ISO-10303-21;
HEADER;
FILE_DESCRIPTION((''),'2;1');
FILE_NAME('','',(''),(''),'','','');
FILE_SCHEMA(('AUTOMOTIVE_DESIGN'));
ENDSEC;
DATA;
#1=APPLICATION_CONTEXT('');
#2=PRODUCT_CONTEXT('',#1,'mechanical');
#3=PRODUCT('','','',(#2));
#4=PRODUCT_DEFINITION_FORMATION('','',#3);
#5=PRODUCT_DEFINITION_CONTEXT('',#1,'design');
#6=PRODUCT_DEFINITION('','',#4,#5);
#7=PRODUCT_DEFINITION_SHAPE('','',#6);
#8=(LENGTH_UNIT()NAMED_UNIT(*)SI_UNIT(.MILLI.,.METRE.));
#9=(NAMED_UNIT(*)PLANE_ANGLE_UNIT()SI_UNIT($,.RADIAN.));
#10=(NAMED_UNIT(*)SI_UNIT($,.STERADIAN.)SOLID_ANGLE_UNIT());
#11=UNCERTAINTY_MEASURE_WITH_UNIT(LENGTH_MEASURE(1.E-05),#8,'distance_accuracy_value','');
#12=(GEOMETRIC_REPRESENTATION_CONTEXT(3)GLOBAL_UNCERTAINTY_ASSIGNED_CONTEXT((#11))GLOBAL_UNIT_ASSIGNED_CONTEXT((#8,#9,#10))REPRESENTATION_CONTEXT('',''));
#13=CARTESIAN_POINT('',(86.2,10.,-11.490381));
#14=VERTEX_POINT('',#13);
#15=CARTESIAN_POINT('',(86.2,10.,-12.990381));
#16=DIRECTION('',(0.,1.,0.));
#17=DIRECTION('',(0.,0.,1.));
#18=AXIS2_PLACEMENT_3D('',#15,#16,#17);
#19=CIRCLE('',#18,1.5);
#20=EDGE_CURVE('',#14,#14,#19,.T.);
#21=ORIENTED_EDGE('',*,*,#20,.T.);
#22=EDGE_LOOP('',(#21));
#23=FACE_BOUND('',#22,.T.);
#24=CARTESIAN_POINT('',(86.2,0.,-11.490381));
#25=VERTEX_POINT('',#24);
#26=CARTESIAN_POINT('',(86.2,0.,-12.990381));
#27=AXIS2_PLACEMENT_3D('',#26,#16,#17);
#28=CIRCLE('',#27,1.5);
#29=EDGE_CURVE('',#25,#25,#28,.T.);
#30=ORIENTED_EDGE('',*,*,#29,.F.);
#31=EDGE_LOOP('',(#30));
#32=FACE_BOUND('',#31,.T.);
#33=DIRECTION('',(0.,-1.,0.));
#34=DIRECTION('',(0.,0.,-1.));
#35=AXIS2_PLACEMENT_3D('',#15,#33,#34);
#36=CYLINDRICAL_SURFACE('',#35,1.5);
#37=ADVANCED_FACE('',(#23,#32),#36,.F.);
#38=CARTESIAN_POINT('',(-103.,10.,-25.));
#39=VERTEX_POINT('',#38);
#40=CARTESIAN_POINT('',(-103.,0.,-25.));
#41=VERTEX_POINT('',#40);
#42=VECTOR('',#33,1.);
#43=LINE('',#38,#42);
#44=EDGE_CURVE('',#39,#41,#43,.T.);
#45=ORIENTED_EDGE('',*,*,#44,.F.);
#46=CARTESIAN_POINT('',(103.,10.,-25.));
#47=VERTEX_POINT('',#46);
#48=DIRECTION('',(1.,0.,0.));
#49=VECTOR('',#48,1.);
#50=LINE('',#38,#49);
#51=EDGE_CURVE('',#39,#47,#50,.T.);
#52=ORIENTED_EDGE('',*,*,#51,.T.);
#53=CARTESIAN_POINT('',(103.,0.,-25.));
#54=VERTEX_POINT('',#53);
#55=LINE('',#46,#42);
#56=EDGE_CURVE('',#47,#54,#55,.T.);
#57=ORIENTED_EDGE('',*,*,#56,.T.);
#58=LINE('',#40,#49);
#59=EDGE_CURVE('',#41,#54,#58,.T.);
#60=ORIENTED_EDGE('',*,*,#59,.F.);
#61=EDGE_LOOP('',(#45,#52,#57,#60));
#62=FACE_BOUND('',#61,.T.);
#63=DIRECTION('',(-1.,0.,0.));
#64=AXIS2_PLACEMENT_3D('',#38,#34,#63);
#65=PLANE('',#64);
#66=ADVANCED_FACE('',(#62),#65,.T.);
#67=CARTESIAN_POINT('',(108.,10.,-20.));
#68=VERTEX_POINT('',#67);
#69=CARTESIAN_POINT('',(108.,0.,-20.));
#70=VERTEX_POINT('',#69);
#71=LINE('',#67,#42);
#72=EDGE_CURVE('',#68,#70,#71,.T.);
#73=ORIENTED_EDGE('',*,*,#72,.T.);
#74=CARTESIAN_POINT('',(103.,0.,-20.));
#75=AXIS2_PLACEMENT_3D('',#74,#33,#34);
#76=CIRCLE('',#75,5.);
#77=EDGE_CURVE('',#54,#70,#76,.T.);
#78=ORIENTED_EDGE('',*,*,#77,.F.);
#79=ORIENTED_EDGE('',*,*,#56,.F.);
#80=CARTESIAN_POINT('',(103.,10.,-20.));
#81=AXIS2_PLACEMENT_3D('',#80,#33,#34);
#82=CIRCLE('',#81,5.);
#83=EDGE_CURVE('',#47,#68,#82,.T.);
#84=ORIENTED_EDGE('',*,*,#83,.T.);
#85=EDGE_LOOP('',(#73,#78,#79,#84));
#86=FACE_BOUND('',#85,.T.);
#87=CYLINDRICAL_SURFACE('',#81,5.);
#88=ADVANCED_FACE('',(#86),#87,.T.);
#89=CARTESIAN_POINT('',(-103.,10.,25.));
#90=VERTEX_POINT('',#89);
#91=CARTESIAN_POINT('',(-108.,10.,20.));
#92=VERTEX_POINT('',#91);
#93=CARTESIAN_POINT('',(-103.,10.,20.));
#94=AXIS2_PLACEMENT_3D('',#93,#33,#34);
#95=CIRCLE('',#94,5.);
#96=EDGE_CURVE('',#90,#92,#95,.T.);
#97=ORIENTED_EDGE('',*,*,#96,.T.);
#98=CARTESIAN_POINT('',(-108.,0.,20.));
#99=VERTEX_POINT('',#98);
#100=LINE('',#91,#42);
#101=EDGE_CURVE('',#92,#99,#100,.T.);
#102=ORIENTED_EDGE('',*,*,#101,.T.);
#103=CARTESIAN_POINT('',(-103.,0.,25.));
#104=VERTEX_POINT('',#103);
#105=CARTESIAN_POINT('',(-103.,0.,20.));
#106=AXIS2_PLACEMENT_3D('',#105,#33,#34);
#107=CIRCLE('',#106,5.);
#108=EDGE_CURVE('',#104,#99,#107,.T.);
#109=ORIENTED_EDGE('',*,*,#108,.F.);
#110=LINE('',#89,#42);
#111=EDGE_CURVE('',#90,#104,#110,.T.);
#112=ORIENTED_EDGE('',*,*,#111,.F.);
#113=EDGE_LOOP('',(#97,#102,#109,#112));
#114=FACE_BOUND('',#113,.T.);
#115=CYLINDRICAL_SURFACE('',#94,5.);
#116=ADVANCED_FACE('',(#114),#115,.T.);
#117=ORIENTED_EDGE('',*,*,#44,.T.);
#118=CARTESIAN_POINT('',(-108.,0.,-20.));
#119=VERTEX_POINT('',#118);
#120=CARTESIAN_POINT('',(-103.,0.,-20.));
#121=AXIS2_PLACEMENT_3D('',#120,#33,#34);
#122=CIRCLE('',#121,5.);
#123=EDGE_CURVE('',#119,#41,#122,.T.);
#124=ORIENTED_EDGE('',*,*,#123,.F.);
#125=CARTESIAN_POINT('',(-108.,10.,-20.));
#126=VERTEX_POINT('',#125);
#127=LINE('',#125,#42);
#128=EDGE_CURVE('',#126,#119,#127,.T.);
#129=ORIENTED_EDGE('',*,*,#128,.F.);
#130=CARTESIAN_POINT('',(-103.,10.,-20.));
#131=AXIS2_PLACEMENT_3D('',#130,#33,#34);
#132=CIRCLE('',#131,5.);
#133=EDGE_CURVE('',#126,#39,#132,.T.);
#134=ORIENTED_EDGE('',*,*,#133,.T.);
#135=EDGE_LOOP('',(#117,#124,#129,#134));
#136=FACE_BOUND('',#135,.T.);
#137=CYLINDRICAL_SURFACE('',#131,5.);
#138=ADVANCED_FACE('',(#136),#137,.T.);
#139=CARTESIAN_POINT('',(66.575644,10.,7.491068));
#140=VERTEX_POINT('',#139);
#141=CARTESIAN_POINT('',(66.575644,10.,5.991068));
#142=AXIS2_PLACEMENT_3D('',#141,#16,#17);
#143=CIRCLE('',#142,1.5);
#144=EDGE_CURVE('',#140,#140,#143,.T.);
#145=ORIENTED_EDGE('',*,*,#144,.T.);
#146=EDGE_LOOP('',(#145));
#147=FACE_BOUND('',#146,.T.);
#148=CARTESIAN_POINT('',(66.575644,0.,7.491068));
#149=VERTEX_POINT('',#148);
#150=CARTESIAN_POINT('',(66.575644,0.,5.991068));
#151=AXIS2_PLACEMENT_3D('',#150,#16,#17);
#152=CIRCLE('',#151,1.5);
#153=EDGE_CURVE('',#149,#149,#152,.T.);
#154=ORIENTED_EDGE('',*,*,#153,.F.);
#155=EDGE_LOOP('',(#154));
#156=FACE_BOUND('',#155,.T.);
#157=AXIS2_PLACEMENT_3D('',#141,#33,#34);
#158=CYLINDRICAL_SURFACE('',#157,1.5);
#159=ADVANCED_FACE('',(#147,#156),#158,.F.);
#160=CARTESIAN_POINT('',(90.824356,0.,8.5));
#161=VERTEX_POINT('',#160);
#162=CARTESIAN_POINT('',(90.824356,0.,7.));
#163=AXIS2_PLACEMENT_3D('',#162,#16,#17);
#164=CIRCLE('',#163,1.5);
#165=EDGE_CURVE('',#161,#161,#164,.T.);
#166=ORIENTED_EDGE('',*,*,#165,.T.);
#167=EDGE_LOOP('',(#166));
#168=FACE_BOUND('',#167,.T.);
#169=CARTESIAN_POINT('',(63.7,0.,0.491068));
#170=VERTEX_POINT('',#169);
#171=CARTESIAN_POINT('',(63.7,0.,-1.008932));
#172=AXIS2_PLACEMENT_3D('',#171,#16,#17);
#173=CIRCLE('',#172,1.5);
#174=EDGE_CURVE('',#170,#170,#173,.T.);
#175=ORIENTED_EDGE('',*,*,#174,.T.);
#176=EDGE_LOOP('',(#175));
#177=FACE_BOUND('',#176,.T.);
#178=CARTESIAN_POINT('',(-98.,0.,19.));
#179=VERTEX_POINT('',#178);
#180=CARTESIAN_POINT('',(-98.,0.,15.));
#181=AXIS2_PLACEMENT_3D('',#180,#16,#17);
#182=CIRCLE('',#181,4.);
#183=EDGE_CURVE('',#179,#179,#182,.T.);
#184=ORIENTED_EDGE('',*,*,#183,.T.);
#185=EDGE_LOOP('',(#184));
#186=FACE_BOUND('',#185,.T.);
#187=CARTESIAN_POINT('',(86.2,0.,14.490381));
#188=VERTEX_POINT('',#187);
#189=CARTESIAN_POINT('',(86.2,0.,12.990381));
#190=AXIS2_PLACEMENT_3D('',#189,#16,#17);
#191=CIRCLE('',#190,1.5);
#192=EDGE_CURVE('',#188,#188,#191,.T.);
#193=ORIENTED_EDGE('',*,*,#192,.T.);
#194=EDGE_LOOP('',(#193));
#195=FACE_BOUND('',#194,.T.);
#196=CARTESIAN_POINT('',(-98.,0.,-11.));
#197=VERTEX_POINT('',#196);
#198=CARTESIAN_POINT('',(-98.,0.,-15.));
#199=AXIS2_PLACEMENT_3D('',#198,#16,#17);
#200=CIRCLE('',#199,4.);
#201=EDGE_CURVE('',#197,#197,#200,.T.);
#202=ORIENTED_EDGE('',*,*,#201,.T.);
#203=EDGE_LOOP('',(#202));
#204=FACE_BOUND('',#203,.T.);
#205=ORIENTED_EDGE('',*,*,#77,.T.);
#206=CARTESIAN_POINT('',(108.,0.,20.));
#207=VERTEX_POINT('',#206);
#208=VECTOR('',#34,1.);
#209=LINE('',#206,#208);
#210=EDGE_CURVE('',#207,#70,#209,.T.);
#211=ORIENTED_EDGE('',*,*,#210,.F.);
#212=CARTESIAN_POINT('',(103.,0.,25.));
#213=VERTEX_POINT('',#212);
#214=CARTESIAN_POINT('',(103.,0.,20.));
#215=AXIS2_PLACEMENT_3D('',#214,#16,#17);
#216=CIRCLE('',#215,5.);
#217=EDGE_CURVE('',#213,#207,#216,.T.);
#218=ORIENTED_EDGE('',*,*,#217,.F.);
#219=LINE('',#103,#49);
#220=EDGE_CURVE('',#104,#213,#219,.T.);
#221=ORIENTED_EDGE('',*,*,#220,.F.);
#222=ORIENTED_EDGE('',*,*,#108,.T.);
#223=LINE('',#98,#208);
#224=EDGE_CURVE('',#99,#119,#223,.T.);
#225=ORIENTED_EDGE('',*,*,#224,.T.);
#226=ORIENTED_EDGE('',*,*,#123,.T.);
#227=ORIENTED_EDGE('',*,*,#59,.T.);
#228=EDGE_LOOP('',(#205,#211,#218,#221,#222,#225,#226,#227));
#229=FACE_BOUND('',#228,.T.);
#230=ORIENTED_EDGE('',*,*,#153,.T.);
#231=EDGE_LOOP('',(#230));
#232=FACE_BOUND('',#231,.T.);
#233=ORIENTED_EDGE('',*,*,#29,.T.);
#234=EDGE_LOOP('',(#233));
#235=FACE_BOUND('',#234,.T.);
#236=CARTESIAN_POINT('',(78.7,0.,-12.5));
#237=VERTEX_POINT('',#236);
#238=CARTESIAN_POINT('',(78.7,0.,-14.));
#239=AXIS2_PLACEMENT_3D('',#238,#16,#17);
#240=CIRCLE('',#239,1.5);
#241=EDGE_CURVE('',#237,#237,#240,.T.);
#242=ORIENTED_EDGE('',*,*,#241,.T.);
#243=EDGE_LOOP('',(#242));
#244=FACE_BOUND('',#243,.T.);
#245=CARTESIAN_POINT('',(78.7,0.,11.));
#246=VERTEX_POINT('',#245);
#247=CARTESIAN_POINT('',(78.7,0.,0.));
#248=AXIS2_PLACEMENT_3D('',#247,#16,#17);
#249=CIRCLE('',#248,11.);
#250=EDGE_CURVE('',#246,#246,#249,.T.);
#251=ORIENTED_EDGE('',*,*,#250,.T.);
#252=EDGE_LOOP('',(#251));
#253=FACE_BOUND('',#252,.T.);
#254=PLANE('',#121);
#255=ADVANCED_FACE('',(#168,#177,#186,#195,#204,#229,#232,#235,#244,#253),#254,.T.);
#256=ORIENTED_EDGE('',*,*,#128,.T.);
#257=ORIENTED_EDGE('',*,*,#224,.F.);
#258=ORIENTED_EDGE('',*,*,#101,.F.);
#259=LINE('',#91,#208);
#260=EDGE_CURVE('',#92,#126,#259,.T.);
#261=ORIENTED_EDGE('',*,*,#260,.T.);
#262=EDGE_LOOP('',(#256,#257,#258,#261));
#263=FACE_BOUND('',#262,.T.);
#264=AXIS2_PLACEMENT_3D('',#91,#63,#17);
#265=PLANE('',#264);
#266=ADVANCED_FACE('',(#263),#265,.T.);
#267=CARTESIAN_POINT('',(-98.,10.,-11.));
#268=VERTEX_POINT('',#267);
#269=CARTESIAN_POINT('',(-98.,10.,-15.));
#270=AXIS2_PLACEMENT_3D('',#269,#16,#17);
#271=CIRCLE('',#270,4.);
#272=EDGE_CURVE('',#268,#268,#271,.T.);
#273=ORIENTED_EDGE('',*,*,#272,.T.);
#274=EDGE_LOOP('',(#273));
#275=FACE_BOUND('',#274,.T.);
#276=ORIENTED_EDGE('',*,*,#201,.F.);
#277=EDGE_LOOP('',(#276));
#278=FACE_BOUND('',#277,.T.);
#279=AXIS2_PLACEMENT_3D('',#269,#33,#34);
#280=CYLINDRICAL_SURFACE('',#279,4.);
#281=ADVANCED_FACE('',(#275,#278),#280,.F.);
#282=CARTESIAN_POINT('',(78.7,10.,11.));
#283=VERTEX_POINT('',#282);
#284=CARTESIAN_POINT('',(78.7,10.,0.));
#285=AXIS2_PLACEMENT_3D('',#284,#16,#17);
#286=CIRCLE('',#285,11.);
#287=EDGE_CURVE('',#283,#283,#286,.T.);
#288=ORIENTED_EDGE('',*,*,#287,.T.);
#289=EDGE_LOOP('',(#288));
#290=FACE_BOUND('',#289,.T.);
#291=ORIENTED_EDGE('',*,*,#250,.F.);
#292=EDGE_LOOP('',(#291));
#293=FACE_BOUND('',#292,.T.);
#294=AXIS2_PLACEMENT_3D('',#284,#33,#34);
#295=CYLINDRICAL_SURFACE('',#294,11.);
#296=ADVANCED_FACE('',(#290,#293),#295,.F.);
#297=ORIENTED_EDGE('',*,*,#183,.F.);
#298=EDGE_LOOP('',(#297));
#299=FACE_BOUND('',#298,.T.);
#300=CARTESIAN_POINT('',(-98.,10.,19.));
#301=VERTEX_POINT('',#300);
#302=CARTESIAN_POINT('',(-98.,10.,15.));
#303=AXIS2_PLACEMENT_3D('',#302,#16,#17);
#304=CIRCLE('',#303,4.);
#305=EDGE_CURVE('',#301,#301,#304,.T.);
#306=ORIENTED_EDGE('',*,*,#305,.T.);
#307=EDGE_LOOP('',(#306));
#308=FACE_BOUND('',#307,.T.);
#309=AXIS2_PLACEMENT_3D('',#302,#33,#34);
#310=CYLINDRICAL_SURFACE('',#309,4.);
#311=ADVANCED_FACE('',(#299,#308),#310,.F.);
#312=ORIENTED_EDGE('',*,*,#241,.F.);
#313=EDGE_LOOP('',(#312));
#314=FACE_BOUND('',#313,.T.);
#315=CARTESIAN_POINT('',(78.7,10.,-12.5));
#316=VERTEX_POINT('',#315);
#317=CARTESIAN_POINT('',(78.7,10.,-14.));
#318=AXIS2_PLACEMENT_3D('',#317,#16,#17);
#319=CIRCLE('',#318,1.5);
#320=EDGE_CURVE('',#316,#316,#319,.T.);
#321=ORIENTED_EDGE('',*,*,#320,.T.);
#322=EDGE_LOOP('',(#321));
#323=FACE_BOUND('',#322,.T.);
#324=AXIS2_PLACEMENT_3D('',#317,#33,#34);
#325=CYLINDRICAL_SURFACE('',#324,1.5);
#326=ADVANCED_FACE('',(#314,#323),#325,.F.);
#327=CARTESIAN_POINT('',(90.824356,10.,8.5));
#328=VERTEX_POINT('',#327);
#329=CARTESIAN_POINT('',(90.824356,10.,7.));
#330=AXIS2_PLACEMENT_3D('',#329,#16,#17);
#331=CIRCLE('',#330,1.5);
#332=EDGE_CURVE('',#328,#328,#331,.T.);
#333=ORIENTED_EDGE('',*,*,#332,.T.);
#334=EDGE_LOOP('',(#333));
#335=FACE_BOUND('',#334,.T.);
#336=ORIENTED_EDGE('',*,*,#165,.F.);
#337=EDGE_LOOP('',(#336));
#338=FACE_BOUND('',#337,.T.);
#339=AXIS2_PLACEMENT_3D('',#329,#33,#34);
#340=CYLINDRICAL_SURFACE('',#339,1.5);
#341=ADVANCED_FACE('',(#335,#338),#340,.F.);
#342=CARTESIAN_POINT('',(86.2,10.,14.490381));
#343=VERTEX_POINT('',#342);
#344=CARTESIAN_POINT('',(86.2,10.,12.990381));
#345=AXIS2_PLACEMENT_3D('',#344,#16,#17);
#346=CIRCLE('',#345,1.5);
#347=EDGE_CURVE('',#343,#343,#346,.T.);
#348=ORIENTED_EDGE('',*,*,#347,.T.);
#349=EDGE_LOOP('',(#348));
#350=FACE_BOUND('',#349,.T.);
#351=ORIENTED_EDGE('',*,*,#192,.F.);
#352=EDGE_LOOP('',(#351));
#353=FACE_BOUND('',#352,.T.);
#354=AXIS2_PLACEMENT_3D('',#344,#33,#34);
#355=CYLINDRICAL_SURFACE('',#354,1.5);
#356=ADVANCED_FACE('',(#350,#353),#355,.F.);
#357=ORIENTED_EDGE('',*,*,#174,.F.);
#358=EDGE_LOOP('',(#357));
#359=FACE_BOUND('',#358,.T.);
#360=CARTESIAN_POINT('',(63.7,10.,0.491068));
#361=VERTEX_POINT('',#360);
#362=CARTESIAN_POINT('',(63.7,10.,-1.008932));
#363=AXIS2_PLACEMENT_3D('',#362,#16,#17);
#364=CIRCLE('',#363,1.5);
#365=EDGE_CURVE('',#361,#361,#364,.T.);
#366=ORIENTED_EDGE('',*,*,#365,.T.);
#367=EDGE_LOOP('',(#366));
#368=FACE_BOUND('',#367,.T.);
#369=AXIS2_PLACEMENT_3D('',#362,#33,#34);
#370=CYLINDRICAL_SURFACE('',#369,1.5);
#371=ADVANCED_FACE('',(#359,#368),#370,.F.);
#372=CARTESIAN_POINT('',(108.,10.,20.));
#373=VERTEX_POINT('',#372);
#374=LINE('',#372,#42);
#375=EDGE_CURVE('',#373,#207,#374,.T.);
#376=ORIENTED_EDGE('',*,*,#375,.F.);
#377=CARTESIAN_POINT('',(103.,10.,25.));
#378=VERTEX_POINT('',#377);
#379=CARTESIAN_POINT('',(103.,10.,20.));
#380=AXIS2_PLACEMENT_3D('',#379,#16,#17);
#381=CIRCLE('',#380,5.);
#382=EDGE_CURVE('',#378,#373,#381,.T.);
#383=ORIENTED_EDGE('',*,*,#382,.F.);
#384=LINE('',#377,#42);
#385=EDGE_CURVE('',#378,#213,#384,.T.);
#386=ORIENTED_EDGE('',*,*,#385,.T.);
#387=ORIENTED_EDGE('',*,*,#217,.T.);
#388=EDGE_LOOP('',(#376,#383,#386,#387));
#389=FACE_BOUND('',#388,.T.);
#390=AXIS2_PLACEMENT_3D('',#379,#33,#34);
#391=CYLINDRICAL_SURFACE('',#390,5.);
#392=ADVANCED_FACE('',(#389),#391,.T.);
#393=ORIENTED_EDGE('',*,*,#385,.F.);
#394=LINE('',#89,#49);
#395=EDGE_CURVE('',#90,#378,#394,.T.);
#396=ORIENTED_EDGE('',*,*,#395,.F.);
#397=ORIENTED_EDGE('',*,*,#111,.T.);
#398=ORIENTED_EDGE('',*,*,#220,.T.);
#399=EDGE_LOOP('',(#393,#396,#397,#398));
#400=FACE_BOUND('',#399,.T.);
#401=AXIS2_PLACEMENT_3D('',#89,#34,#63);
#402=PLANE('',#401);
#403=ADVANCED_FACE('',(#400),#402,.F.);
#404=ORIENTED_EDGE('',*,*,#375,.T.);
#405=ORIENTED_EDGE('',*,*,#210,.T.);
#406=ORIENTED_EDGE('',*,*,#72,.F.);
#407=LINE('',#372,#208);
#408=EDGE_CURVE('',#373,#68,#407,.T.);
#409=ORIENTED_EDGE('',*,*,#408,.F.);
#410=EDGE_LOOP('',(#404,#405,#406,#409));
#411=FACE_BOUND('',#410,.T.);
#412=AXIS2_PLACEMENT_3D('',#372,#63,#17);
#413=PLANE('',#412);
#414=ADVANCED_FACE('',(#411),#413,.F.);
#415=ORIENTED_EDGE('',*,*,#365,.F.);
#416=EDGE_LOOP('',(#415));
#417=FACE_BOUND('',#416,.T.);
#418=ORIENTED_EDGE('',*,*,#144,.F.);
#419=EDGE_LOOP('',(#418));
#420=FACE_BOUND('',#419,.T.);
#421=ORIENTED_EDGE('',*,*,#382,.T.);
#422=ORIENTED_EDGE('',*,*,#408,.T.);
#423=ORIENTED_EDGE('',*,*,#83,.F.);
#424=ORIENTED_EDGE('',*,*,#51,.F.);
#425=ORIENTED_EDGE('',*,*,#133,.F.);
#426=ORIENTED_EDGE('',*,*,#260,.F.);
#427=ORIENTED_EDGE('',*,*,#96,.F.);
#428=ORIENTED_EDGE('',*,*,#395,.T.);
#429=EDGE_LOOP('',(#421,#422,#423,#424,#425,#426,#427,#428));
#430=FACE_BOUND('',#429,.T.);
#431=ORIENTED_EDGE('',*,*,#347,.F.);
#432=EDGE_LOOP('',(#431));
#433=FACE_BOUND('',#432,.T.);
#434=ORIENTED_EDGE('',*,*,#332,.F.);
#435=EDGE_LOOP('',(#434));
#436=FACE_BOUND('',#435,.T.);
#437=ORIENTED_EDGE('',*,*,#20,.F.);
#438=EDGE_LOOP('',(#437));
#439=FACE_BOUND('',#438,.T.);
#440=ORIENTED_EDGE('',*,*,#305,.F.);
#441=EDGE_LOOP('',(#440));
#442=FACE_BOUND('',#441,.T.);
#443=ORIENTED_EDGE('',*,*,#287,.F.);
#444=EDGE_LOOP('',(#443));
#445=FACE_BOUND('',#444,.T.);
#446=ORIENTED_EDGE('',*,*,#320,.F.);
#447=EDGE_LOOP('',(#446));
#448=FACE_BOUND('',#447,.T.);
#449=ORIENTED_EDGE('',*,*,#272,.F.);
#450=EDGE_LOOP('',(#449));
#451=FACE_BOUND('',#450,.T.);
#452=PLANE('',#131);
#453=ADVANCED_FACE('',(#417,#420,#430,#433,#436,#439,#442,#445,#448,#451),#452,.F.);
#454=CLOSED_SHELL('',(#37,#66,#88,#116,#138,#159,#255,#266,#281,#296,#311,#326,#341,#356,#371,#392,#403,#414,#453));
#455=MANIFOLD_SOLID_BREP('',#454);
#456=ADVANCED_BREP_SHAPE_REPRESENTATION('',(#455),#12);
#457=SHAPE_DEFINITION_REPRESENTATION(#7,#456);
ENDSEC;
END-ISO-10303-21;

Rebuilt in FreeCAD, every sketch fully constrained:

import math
import FreeCAD as App
import Part
import Sketcher
from FreeCAD import Vector

doc = App.newDocument("Part")
body = doc.addObject("PartDesign::Body", "Body")

sketch1 = body.newObject("Sketcher::SketchObject", "Sketch")
sketch1.AttachmentSupport = (doc.getObject("XZ_Plane"), [""])
sketch1.MapMode = "FlatFace"
sketch1.addGeometry([
    Part.LineSegment(Vector(-103, 25, 0), Vector(103, 25, 0)),
    Part.ArcOfCircle(Part.Circle(Vector(103, 20, 0), Vector(0, 0, 1), 5), math.radians(0), math.radians(90)),
    Part.LineSegment(Vector(108, 20, 0), Vector(108, -20, 0)),
    Part.ArcOfCircle(Part.Circle(Vector(103, -20, 0), Vector(0, 0, 1), 5), math.radians(-90), math.radians(0)),
    Part.LineSegment(Vector(103, -25, 0), Vector(-103, -25, 0)),
    Part.ArcOfCircle(Part.Circle(Vector(-103, -20, 0), Vector(0, 0, 1), 5), math.radians(180), math.radians(270)),
    Part.LineSegment(Vector(-108, -20, 0), Vector(-108, 20, 0)),
    Part.ArcOfCircle(Part.Circle(Vector(-103, 20, 0), Vector(0, 0, 1), 5), math.radians(90), math.radians(180)),
    Part.Circle(Vector(-98, 15, 0), Vector(0, 0, 1), 4),
    Part.Circle(Vector(86.2, 13, 0), Vector(0, 0, 1), 1.5),
    Part.Circle(Vector(66.6, 6, 0), Vector(0, 0, 1), 1.5),
    Part.Circle(Vector(90.8, 7, 0), Vector(0, 0, 1), 1.5),
    Part.Circle(Vector(-98, -15, 0), Vector(0, 0, 1), 4),
    Part.Circle(Vector(63.7, -1, 0), Vector(0, 0, 1), 1.5),
    Part.Circle(Vector(78.7, 0, 0), Vector(0, 0, 1), 11),
    Part.Circle(Vector(78.7, -14, 0), Vector(0, 0, 1), 1.5),
    Part.Circle(Vector(86.2, -13, 0), Vector(0, 0, 1), 1.5),
], False)
sketch1.addConstraint([
    Sketcher.Constraint("Tangent", 0, 2, 1, 2),
    Sketcher.Constraint("Tangent", 1, 1, 2, 1),
    Sketcher.Constraint("Tangent", 2, 2, 3, 2),
    Sketcher.Constraint("Tangent", 3, 1, 4, 1),
    Sketcher.Constraint("Tangent", 4, 2, 5, 2),
    Sketcher.Constraint("Tangent", 5, 1, 6, 1),
    Sketcher.Constraint("Tangent", 6, 2, 7, 2),
    Sketcher.Constraint("Tangent", 7, 1, 0, 1),
    Sketcher.Constraint("Horizontal", 0),
    Sketcher.Constraint("Vertical", 2),
    Sketcher.Constraint("Horizontal", 4),
    Sketcher.Constraint("Vertical", 6),
    Sketcher.Constraint("Equal", 1, 3),
    Sketcher.Constraint("Equal", 3, 5),
    Sketcher.Constraint("Equal", 5, 7),
    Sketcher.Constraint("Equal", 9, 10),
    Sketcher.Constraint("Equal", 10, 11),
    Sketcher.Constraint("Equal", 8, 12),
    Sketcher.Constraint("Equal", 11, 13),
    Sketcher.Constraint("Equal", 13, 15),
    Sketcher.Constraint("Equal", 15, 16),
    Sketcher.Constraint("Symmetric", 1, 3, 5, 3, -1, 1),
    Sketcher.Constraint("Symmetric", 8, 3, 12, 3, -1),
    Sketcher.Constraint("Symmetric", 9, 3, 16, 3, -1),
    Sketcher.Constraint("PointOnObject", 14, 3, -1),
    Sketcher.Constraint("Vertical", 14, 3, 15, 3),
    Sketcher.Constraint("Diameter", 8, 8.0),
    Sketcher.Constraint("Diameter", 9, 3.0),
    Sketcher.Constraint("Diameter", 14, 22.0),
    Sketcher.Constraint("Radius", 1, 5.0),
    Sketcher.Constraint("DistanceX", 0, 1, 0, 2, 206.0),
    Sketcher.Constraint("DistanceY", 2, 2, 2, 1, 40.0),
    Sketcher.Constraint("DistanceX", 8, 3, -1, 1, 98.0),
    Sketcher.Constraint("DistanceY", -1, 1, 8, 3, 15.0),
    Sketcher.Constraint("DistanceY", -1, 1, 11, 3, 7.0),
    Sketcher.Constraint("DistanceY", 15, 3, -1, 1, 14.0),
    Sketcher.Constraint("DistanceY", 13, 3, 10, 3, 7.0),
    Sketcher.Constraint("DistanceX", 13, 3, 14, 3, 15.0),
    Sketcher.Constraint("DistanceX", -1, 1, 9, 3, 86.2),
    Sketcher.Constraint("DistanceX", -1, 1, 13, 3, 63.7),
    Sketcher.Constraint("DistanceY", -1, 1, 9, 3, 12.990381),
    Sketcher.Constraint("DistanceY", -1, 1, 10, 3, 5.991068),
    Sketcher.Constraint("DistanceX", 10, 3, 11, 3, 24.248711),
    Sketcher.Constraint("DistanceX", -1, 1, 10, 3, 66.575644),
])
pad1 = body.newObject("PartDesign::Pad", "Pad")
pad1.Profile = sketch1
pad1.Length = 10
pad1.Reversed = True

doc.recompute()
